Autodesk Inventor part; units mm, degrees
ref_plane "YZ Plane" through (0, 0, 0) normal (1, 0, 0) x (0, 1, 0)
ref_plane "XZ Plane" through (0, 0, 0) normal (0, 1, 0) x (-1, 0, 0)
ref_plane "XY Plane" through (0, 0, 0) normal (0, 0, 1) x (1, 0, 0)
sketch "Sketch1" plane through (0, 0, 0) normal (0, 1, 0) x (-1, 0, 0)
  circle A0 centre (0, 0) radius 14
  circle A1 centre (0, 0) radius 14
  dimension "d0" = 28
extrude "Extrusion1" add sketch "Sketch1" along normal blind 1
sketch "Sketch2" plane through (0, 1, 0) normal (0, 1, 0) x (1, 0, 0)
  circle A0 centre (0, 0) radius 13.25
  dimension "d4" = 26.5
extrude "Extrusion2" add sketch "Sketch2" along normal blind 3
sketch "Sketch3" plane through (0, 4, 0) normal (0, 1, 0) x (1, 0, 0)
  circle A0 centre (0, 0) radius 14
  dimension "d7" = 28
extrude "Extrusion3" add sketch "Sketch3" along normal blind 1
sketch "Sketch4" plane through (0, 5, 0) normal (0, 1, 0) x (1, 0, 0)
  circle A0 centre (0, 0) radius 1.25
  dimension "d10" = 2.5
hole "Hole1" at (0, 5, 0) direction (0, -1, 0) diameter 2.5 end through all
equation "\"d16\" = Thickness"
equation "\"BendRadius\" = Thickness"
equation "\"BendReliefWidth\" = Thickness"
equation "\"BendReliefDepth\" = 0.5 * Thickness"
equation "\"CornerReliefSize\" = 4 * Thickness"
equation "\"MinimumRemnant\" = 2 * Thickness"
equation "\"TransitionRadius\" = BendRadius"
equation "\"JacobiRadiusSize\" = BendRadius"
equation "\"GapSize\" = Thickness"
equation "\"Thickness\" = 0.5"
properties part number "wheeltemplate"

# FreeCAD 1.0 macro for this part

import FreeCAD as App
import Part
import Sketcher

V = App.Vector
Q = App.Units.Quantity

doc = App.newDocument("Part")
body = doc.addObject("PartDesign::Body", "Body")

# Sketch on XZ plane
sketch1 = body.newObject("Sketcher::SketchObject", "Sketch")
sketch1.AttachmentSupport = (doc.getObject("XZ_Plane"), [""])
sketch1.MapMode = "FlatFace"
sketch1.addGeometry(Part.Circle(V(0, 0, 0), V(0, 0, 1), 14), False)
sketch1.addConstraint([
    Sketcher.Constraint("Coincident", 0, 3, -1, 1),
    Sketcher.Constraint("Diameter", 0, Q("28 mm")),
])
pad1 = body.newObject("PartDesign::Pad", "Pad")
pad1.Profile = sketch1
pad1.Length = 1
pad1.Reversed = True

# Sketch on XZ plane
sketch2 = body.newObject("Sketcher::SketchObject", "Sketch001")
sketch2.AttachmentSupport = (doc.getObject("XZ_Plane"), [""])
sketch2.MapMode = "FlatFace"
sketch2.AttachmentOffset = App.Placement(V(0, 0, -1), App.Rotation())
sketch2.addGeometry(Part.Circle(V(0, 0, 0), V(0, 0, 1), 13), False)
sketch2.addConstraint([
    Sketcher.Constraint("Coincident", 0, 3, -1, 1),
    Sketcher.Constraint("Diameter", 0, Q("26.5 mm")),
])
pad2 = body.newObject("PartDesign::Pad", "Pad001")
pad2.Profile = sketch2
pad2.Length = 3
pad2.Reversed = True

# Sketch on XZ plane
sketch3 = body.newObject("Sketcher::SketchObject", "Sketch002")
sketch3.AttachmentSupport = (doc.getObject("XZ_Plane"), [""])
sketch3.MapMode = "FlatFace"
sketch3.AttachmentOffset = App.Placement(V(0, 0, -4), App.Rotation())
sketch3.addGeometry(Part.Circle(V(0, 0, 0), V(0, 0, 1), 14), False)
sketch3.addConstraint([
    Sketcher.Constraint("Coincident", 0, 3, -1, 1),
    Sketcher.Constraint("Diameter", 0, Q("28 mm")),
])
pad3 = body.newObject("PartDesign::Pad", "Pad002")
pad3.Profile = sketch3
pad3.Length = 1
pad3.Reversed = True

# Sketch on XZ plane
sketch4 = body.newObject("Sketcher::SketchObject", "Sketch003")
sketch4.AttachmentSupport = (doc.getObject("XZ_Plane"), [""])
sketch4.MapMode = "FlatFace"
sketch4.AttachmentOffset = App.Placement(V(0, 0, -5), App.Rotation())
sketch4.addGeometry(Part.Circle(V(0, 0, 0), V(0, 0, 1), 1.2), False)
sketch4.addConstraint([
    Sketcher.Constraint("Coincident", 0, 3, -1, 1),
    Sketcher.Constraint("Diameter", 0, Q("2.5 mm")),
])
doc.recompute()
hole = body.newObject("PartDesign::Hole", "Hole")
hole.Profile = sketch4
hole.ThreadType = "None"
hole.Diameter = 2.5
hole.DepthType = "ThroughAll"
hole.Reversed = True

doc.recompute()
